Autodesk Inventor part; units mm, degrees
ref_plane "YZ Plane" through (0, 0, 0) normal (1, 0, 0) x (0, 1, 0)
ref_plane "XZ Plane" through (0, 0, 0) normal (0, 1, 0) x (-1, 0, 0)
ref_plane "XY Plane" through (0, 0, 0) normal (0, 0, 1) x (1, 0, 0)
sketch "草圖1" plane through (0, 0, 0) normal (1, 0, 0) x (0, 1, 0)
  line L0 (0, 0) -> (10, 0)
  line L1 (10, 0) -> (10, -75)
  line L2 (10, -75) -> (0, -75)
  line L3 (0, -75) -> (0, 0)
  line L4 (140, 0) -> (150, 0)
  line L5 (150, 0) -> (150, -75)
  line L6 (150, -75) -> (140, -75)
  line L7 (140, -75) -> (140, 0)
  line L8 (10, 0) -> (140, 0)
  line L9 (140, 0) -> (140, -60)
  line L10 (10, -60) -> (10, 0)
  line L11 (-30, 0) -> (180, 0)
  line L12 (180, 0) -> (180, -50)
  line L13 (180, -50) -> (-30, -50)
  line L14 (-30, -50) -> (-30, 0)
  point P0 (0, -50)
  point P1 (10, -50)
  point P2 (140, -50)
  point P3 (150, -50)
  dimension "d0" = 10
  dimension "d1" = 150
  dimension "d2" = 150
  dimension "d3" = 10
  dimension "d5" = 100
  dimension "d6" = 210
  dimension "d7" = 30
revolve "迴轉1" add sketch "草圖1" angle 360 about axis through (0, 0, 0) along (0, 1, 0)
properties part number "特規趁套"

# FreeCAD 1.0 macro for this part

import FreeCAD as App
import Part
import Sketcher
from FreeCAD import Vector
Q = App.Units.Quantity

doc = App.newDocument("Part")
body = doc.addObject("PartDesign::Body", "Body")

# Sketch on YZ plane
sketch1 = body.newObject("Sketcher::SketchObject", "Sketch")
sketch1.AttachmentSupport = (doc.getObject("YZ_Plane"), [""])
sketch1.MapMode = "FlatFace"
sketch1.addGeometry([
    Part.LineSegment(Vector(-30, 0, 0), Vector(-30, -50, 0)),  # 0
    Part.LineSegment(Vector(-30, -50, 0), Vector(0, -50, 0)),  # 1
    Part.LineSegment(Vector(0, -50, 0), Vector(0, -75, 0)),  # 2
    Part.LineSegment(Vector(0, -75, 0), Vector(10, -75, 0)),  # 3
    Part.LineSegment(Vector(10, -75, 0), Vector(10, -50, 0)),  # 4
    Part.LineSegment(Vector(10, -50, 0), Vector(140, -50, 0)),  # 5
    Part.LineSegment(Vector(140, -50, 0), Vector(140, -75, 0)),  # 6
    Part.LineSegment(Vector(140, -75, 0), Vector(150, -75, 0)),  # 7
    Part.LineSegment(Vector(150, -75, 0), Vector(150, -50, 0)),  # 8
    Part.LineSegment(Vector(150, -50, 0), Vector(180, -50, 0)),  # 9
    Part.LineSegment(Vector(180, -50, 0), Vector(180, 0, 0)),  # 10
    Part.LineSegment(Vector(180, 0, 0), Vector(-30, 0, 0)),  # 11
], False)
sketch1.addConstraint([
    Sketcher.Constraint("Coincident", 0, 2, 1, 1),
    Sketcher.Constraint("Coincident", 1, 2, 2, 1),
    Sketcher.Constraint("Coincident", 2, 2, 3, 1),
    Sketcher.Constraint("Coincident", 3, 2, 4, 1),
    Sketcher.Constraint("Coincident", 4, 2, 5, 1),
    Sketcher.Constraint("Coincident", 5, 2, 6, 1),
    Sketcher.Constraint("Coincident", 6, 2, 7, 1),
    Sketcher.Constraint("Coincident", 7, 2, 8, 1),
    Sketcher.Constraint("Coincident", 8, 2, 9, 1),
    Sketcher.Constraint("Coincident", 9, 2, 10, 1),
    Sketcher.Constraint("Coincident", 10, 2, 11, 1),
    Sketcher.Constraint("Coincident", 11, 2, 0, 1),
    Sketcher.Constraint("Vertical", 0),
    Sketcher.Constraint("Horizontal", 1),
    Sketcher.Constraint("Vertical", 2),
    Sketcher.Constraint("Horizontal", 3),
    Sketcher.Constraint("Vertical", 4),
    Sketcher.Constraint("Horizontal", 5),
    Sketcher.Constraint("Vertical", 6),
    Sketcher.Constraint("Horizontal", 7),
    Sketcher.Constraint("Vertical", 8),
    Sketcher.Constraint("Horizontal", 9),
    Sketcher.Constraint("Vertical", 10),
    Sketcher.Constraint("Horizontal", 11),
    Sketcher.Constraint("PointOnObject", 1, 2, -2),
    Sketcher.Constraint("PointOnObject", 10, 2, -1),
    Sketcher.Constraint("Horizontal", 1, 2, 4, 2),
    Sketcher.Constraint("Horizontal", 3, 2, 6, 2),
    Sketcher.Constraint("Horizontal", 5, 2, 8, 2),
    Sketcher.Constraint("Equal", 3, 7),
    Sketcher.Constraint("Equal", 1, 9),
    Sketcher.Constraint("DistanceX", 1, 1, 1, 2, Q("30 mm")),
    Sketcher.Constraint("DistanceX", 3, 1, 3, 2, Q("10 mm")),
    Sketcher.Constraint("DistanceX", 11, 2, 11, 1, Q("210 mm")),
    Sketcher.Constraint("DistanceY", 0, 2, 0, 1, Q("50 mm")),
    Sketcher.Constraint("DistanceY", 2, 2, 2, 1, Q("25 mm")),
])
revolution = body.newObject("PartDesign::Revolution", "Revolution")
revolution.Profile = sketch1
revolution.ReferenceAxis = (sketch1, ["H_Axis"])
revolution.Angle = 360

doc.recompute()
